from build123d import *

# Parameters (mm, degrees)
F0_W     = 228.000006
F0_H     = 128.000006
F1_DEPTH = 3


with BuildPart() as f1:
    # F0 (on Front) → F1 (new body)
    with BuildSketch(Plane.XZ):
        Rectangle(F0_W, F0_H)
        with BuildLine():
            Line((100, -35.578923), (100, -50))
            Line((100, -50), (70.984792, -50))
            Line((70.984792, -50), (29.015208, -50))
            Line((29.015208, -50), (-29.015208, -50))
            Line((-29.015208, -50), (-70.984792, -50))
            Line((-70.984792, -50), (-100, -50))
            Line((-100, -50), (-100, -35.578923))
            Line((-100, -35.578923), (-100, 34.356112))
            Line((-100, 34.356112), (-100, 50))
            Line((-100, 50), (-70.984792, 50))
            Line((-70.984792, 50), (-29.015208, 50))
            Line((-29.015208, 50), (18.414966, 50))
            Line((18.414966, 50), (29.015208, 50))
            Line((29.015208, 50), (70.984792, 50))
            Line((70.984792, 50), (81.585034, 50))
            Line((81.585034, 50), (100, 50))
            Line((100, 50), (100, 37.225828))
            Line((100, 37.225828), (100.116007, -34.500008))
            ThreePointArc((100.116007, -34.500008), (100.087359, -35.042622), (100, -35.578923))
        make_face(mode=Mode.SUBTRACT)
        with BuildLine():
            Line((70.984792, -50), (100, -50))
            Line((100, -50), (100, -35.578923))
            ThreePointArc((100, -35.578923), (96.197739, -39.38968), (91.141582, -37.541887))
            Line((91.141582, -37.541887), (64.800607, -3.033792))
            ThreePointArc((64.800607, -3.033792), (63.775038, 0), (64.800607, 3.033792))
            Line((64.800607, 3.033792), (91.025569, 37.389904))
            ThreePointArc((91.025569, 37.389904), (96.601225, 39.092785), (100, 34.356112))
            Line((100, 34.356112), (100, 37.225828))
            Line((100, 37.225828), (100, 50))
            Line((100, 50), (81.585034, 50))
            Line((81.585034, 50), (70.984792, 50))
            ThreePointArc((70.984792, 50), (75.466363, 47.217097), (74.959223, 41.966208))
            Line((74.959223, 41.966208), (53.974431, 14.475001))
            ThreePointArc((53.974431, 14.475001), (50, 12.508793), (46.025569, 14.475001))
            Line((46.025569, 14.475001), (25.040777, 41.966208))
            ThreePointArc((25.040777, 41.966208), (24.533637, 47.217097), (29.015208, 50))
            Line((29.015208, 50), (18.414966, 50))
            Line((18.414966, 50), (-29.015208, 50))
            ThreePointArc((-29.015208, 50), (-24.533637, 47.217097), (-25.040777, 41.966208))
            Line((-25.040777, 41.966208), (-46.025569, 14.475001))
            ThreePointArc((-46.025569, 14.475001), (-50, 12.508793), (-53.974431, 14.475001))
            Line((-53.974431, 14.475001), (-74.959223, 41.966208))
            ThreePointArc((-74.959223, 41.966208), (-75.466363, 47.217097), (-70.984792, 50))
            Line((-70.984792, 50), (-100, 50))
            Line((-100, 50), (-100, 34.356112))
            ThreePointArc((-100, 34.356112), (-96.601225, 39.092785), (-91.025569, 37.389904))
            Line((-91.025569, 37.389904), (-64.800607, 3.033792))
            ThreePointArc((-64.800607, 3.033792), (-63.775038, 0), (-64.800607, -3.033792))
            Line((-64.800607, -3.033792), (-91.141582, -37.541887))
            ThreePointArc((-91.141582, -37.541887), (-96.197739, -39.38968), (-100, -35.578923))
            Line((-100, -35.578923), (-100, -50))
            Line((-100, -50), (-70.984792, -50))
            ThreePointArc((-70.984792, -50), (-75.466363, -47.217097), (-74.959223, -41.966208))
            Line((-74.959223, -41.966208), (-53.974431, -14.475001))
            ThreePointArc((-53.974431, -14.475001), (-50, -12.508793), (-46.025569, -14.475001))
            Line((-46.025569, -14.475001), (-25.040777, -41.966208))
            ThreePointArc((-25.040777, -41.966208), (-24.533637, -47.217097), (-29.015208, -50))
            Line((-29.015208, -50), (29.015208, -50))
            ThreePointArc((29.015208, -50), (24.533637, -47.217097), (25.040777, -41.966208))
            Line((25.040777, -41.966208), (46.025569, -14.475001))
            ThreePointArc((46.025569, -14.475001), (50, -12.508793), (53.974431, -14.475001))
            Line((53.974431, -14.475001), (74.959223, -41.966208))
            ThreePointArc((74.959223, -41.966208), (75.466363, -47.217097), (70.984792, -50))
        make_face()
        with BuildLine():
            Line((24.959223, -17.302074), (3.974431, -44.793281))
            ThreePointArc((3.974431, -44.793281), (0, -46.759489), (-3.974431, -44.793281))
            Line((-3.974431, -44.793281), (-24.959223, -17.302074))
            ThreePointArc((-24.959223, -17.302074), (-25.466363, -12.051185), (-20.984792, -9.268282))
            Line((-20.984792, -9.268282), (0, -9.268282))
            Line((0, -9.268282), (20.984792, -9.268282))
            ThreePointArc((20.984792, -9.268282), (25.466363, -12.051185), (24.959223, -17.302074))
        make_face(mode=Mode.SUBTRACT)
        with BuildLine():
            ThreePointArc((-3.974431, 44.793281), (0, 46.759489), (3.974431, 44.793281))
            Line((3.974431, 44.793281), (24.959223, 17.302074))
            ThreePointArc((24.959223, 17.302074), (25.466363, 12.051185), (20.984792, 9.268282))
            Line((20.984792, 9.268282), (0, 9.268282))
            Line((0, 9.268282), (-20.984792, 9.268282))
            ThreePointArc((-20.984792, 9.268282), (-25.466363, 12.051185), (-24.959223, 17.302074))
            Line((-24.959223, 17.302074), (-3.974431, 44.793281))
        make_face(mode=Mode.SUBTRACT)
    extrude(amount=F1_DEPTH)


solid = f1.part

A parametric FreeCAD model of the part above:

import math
import FreeCAD as App
import Part
import Sketcher

V = App.Vector


def add_polygon(sketch, points):
    """Adds a closed chain of lines whose ends are joined by coincident constraints."""
    first, n = sketch.GeometryCount, len(points)
    for a, b in zip(points, points[1:] + points[:1]):
        sketch.addGeometry(Part.LineSegment(App.Vector(*a, 0), App.Vector(*b, 0)), False)
    for i in range(n):
        sketch.addConstraint(Sketcher.Constraint("Coincident", first + i, 2, first + (i + 1) % n, 1))

doc = App.newDocument("Part")
body = doc.addObject("PartDesign::Body", "Body")

# Sketch on XZ plane
sketch1 = body.newObject("Sketcher::SketchObject", "Sketch")
sketch1.AttachmentSupport = (doc.getObject("XZ_Plane"), [""])
sketch1.MapMode = "FlatFace"
add_polygon(sketch1, [(-114, 64), (-114, -64), (114, -64), (114, 64)])  # lines 0-3
sketch1.addGeometry(Part.LineSegment(V(-29, -50, 0), V(-71, -50, 0)), False)  # 4
sketch1.addGeometry(Part.ArcOfCircle(Part.Circle(V(-71, -45, 0), V(0, 0, 1), 5), math.radians(143), math.radians(270)), False)  # 5
sketch1.addGeometry(Part.LineSegment(V(-75, -42, 0), V(-54, -14.5, 0)), False)  # 6
sketch1.addGeometry(Part.ArcOfCircle(Part.Circle(V(-50, -17.5, 0), V(0, 0, 1), 5), math.radians(37), math.radians(143)), False)  # 7
sketch1.addGeometry(Part.LineSegment(V(-46, -14.5, 0), V(-25, -42, 0)), False)  # 8
sketch1.addGeometry(Part.ArcOfCircle(Part.Circle(V(-29, -45, 0), V(0, 0, 1), 5), math.radians(-90), math.radians(37)), False)  # 9
sketch1.addGeometry(Part.ArcOfCircle(Part.Circle(V(21, -14.3, 0), V(0, 0, 1), 5), math.radians(-37), math.radians(90)), False)  # 10
sketch1.addGeometry(Part.LineSegment(V(25, -17.3, 0), V(4, -44.8, 0)), False)  # 11
sketch1.addGeometry(Part.ArcOfCircle(Part.Circle(V(0, -41.8, 0), V(0, 0, 1), 5), math.radians(-143), math.radians(-37)), False)  # 12
sketch1.addGeometry(Part.LineSegment(V(-4, -44.8, 0), V(-25, -17.3, 0)), False)  # 13
sketch1.addGeometry(Part.ArcOfCircle(Part.Circle(V(-21, -14.3, 0), V(0, 0, 1), 5), math.radians(90), math.radians(217)), False)  # 14
sketch1.addGeometry(Part.LineSegment(V(-21, -9.3, 0), V(21, -9.3, 0)), False)  # 15
sketch1.addGeometry(Part.LineSegment(V(-100, -35.6, 0), V(-100, 34.4, 0)), False)  # 16
sketch1.addGeometry(Part.ArcOfCircle(Part.Circle(V(-95, 34.4, 0), V(0, 0, 1), 5), math.radians(37), math.radians(180)), False)  # 17
sketch1.addGeometry(Part.LineSegment(V(-91, 37.4, 0), V(-64.8, 3, 0)), False)  # 18
sketch1.addGeometry(Part.ArcOfCircle(Part.Circle(V(-68.8, 0, 0), V(0, 0, 1), 5), math.radians(-37), math.radians(37)), False)  # 19
sketch1.addGeometry(Part.LineSegment(V(-64.8, -3, 0), V(-91.1, -37.5, 0)), False)  # 20
sketch1.addGeometry(Part.ArcOfCircle(Part.Circle(V(-95.1, -34.5, 0), V(0, 0, 1), 5), math.radians(-168), math.radians(-37)), False)  # 21
sketch1.addGeometry(Part.LineSegment(V(71, -50, 0), V(29, -50, 0)), False)  # 22
sketch1.addGeometry(Part.ArcOfCircle(Part.Circle(V(29, -45, 0), V(0, 0, 1), 5), math.radians(143), math.radians(270)), False)  # 23
sketch1.addGeometry(Part.LineSegment(V(25, -42, 0), V(46, -14.5, 0)), False)  # 24
sketch1.addGeometry(Part.ArcOfCircle(Part.Circle(V(50, -17.5, 0), V(0, 0, 1), 5), math.radians(37), math.radians(143)), False)  # 25
sketch1.addGeometry(Part.LineSegment(V(54, -14.5, 0), V(75, -42, 0)), False)  # 26
sketch1.addGeometry(Part.ArcOfCircle(Part.Circle(V(71, -45, 0), V(0, 0, 1), 5), math.radians(-90), math.radians(37)), False)  # 27
sketch1.addGeometry(Part.ArcOfCircle(Part.Circle(V(95.1, -34.5, 0), V(0, 0, 1), 5), math.radians(-12.37), math.radians(0.09)), False)  # 28
sketch1.addGeometry(Part.ArcOfCircle(Part.Circle(V(95.1, -34.5, 0), V(0, 0, 1), 5), math.radians(-143), math.radians(-12)), False)  # 29
sketch1.addGeometry(Part.LineSegment(V(91.1, -37.5, 0), V(64.8, -3, 0)), False)  # 30
sketch1.addGeometry(Part.ArcOfCircle(Part.Circle(V(68.8, 0, 0), V(0, 0, 1), 5), math.radians(143), math.radians(217)), False)  # 31
sketch1.addGeometry(Part.LineSegment(V(64.8, 3, 0), V(91, 37.4, 0)), False)  # 32
sketch1.addGeometry(Part.ArcOfCircle(Part.Circle(V(95, 34.4, 0), V(0, 0, 1), 5), math.radians(0), math.radians(143)), False)  # 33
sketch1.addGeometry(Part.LineSegment(V(100, 34.4, 0), V(100, 37.2, 0)), False)  # 34
sketch1.addGeometry(Part.LineSegment(V(100, 37.2, 0), V(100.1, -34.5, 0)), False)  # 35
sketch1.addGeometry(Part.LineSegment(V(-71, 50, 0), V(-29, 50, 0)), False)  # 36
sketch1.addGeometry(Part.ArcOfCircle(Part.Circle(V(-29, 45, 0), V(0, 0, 1), 5), math.radians(-37), math.radians(90)), False)  # 37
sketch1.addGeometry(Part.LineSegment(V(-25, 42, 0), V(-46, 14.5, 0)), False)  # 38
sketch1.addGeometry(Part.ArcOfCircle(Part.Circle(V(-50, 17.5, 0), V(0, 0, 1), 5), math.radians(-143), math.radians(-37)), False)  # 39
sketch1.addGeometry(Part.LineSegment(V(-54, 14.5, 0), V(-75, 42, 0)), False)  # 40
sketch1.addGeometry(Part.ArcOfCircle(Part.Circle(V(-71, 45, 0), V(0, 0, 1), 5), math.radians(90), math.radians(217)), False)  # 41
sketch1.addGeometry(Part.LineSegment(V(-25, 17.3, 0), V(-4, 44.8, 0)), False)  # 42
sketch1.addGeometry(Part.ArcOfCircle(Part.Circle(V(0, 41.8, 0), V(0, 0, 1), 5), math.radians(37), math.radians(143)), False)  # 43
sketch1.addGeometry(Part.LineSegment(V(4, 44.8, 0), V(25, 17.3, 0)), False)  # 44
sketch1.addGeometry(Part.ArcOfCircle(Part.Circle(V(21, 14.3, 0), V(0, 0, 1), 5), math.radians(-90), math.radians(37)), False)  # 45
sketch1.addGeometry(Part.LineSegment(V(21, 9.3, 0), V(-21, 9.3, 0)), False)  # 46
sketch1.addGeometry(Part.ArcOfCircle(Part.Circle(V(-21, 14.3, 0), V(0, 0, 1), 5), math.radians(143), math.radians(270)), False)  # 47
sketch1.addGeometry(Part.LineSegment(V(29, 50, 0), V(71, 50, 0)), False)  # 48
sketch1.addGeometry(Part.ArcOfCircle(Part.Circle(V(71, 45, 0), V(0, 0, 1), 5), math.radians(-37), math.radians(90)), False)  # 49
sketch1.addGeometry(Part.LineSegment(V(75, 42, 0), V(54, 14.5, 0)), False)  # 50
sketch1.addGeometry(Part.ArcOfCircle(Part.Circle(V(50, 17.5, 0), V(0, 0, 1), 5), math.radians(-143), math.radians(-37)), False)  # 51
sketch1.addGeometry(Part.LineSegment(V(46, 14.5, 0), V(25, 42, 0)), False)  # 52
sketch1.addGeometry(Part.ArcOfCircle(Part.Circle(V(29, 45, 0), V(0, 0, 1), 5), math.radians(90), math.radians(217)), False)  # 53
sketch1.addConstraint(Sketcher.Constraint("Tangent", 4, 2, 5, 2))
sketch1.addConstraint(Sketcher.Constraint("Tangent", 5, 1, 6, 1))
sketch1.addConstraint(Sketcher.Constraint("Tangent", 6, 2, 7, 2))
sketch1.addConstraint(Sketcher.Constraint("Tangent", 7, 1, 8, 1))
sketch1.addConstraint(Sketcher.Constraint("Tangent", 8, 2, 9, 2))
sketch1.addConstraint(Sketcher.Constraint("Tangent", 9, 1, 4, 1))
sketch1.addConstraint(Sketcher.Constraint("Tangent", 10, 1, 11, 1))
sketch1.addConstraint(Sketcher.Constraint("Tangent", 11, 2, 12, 2))
sketch1.addConstraint(Sketcher.Constraint("Tangent", 12, 1, 13, 1))
sketch1.addConstraint(Sketcher.Constraint("Tangent", 13, 2, 14, 2))
sketch1.addConstraint(Sketcher.Constraint("Tangent", 14, 1, 15, 1))
sketch1.addConstraint(Sketcher.Constraint("Tangent", 15, 2, 10, 2))
sketch1.addConstraint(Sketcher.Constraint("Tangent", 16, 2, 17, 2))
sketch1.addConstraint(Sketcher.Constraint("Tangent", 17, 1, 18, 1))
sketch1.addConstraint(Sketcher.Constraint("Tangent", 18, 2, 19, 2))
sketch1.addConstraint(Sketcher.Constraint("Tangent", 19, 1, 20, 1))
sketch1.addConstraint(Sketcher.Constraint("Tangent", 20, 2, 21, 2))
sketch1.addConstraint(Sketcher.Constraint("Coincident", 21, 1, 16, 1))
sketch1.addConstraint(Sketcher.Constraint("Tangent", 22, 2, 23, 2))
sketch1.addConstraint(Sketcher.Constraint("Tangent", 23, 1, 24, 1))
sketch1.addConstraint(Sketcher.Constraint("Tangent", 24, 2, 25, 2))
sketch1.addConstraint(Sketcher.Constraint("Tangent", 25, 1, 26, 1))
sketch1.addConstraint(Sketcher.Constraint("Tangent", 26, 2, 27, 2))
sketch1.addConstraint(Sketcher.Constraint("Tangent", 27, 1, 22, 1))
sketch1.addConstraint(Sketcher.Constraint("Tangent", 28, 1, 29, 2))
sketch1.addConstraint(Sketcher.Constraint("Tangent", 29, 1, 30, 1))
sketch1.addConstraint(Sketcher.Constraint("Tangent", 30, 2, 31, 2))
sketch1.addConstraint(Sketcher.Constraint("Tangent", 31, 1, 32, 1))
sketch1.addConstraint(Sketcher.Constraint("Tangent", 32, 2, 33, 2))
sketch1.addConstraint(Sketcher.Constraint("Tangent", 33, 1, 34, 1))
sketch1.addConstraint(Sketcher.Constraint("Coincident", 34, 2, 35, 1))
sketch1.addConstraint(Sketcher.Constraint("Tangent", 35, 2, 28, 2))
sketch1.addConstraint(Sketcher.Constraint("Tangent", 36, 2, 37, 2))
sketch1.addConstraint(Sketcher.Constraint("Tangent", 37, 1, 38, 1))
sketch1.addConstraint(Sketcher.Constraint("Tangent", 38, 2, 39, 2))
sketch1.addConstraint(Sketcher.Constraint("Tangent", 39, 1, 40, 1))
sketch1.addConstraint(Sketcher.Constraint("Tangent", 40, 2, 41, 2))
sketch1.addConstraint(Sketcher.Constraint("Tangent", 41, 1, 36, 1))
sketch1.addConstraint(Sketcher.Constraint("Tangent", 42, 2, 43, 2))
sketch1.addConstraint(Sketcher.Constraint("Tangent", 43, 1, 44, 1))
sketch1.addConstraint(Sketcher.Constraint("Tangent", 44, 2, 45, 2))
sketch1.addConstraint(Sketcher.Constraint("Tangent", 45, 1, 46, 1))
sketch1.addConstraint(Sketcher.Constraint("Tangent", 46, 2, 47, 2))
sketch1.addConstraint(Sketcher.Constraint("Tangent", 47, 1, 42, 1))
sketch1.addConstraint(Sketcher.Constraint("Tangent", 48, 2, 49, 2))
sketch1.addConstraint(Sketcher.Constraint("Tangent", 49, 1, 50, 1))
sketch1.addConstraint(Sketcher.Constraint("Tangent", 50, 2, 51, 2))
sketch1.addConstraint(Sketcher.Constraint("Tangent", 51, 1, 52, 1))
sketch1.addConstraint(Sketcher.Constraint("Tangent", 52, 2, 53, 2))
sketch1.addConstraint(Sketcher.Constraint("Tangent", 53, 1, 48, 1))
sketch1.addConstraint(Sketcher.Constraint("Vertical", 0))
sketch1.addConstraint(Sketcher.Constraint("Horizontal", 1))
sketch1.addConstraint(Sketcher.Constraint("Vertical", 2))
sketch1.addConstraint(Sketcher.Constraint("Horizontal", 3))
sketch1.addConstraint(Sketcher.Constraint("Horizontal", 4))
sketch1.addConstraint(Sketcher.Constraint("Horizontal", 15))
sketch1.addConstraint(Sketcher.Constraint("Vertical", 16))
sketch1.addConstraint(Sketcher.Constraint("Horizontal", 22))
sketch1.addConstraint(Sketcher.Constraint("Vertical", 34))
sketch1.addConstraint(Sketcher.Constraint("Horizontal", 36))
sketch1.addConstraint(Sketcher.Constraint("Horizontal", 46))
sketch1.addConstraint(Sketcher.Constraint("Horizontal", 48))
sketch1.addConstraint(Sketcher.Constraint("Equal", 5, 7))
sketch1.addConstraint(Sketcher.Constraint("Equal", 7, 9))
sketch1.addConstraint(Sketcher.Constraint("Equal", 9, 10))
sketch1.addConstraint(Sketcher.Constraint("Equal", 10, 12))
sketch1.addConstraint(Sketcher.Constraint("Equal", 12, 14))
sketch1.addConstraint(Sketcher.Constraint("Equal", 14, 17))
sketch1.addConstraint(Sketcher.Constraint("Equal", 14, 19))
sketch1.addConstraint(Sketcher.Constraint("Equal", 19, 21))
sketch1.addConstraint(Sketcher.Constraint("Equal", 21, 23))
sketch1.addConstraint(Sketcher.Constraint("Equal", 23, 25))
sketch1.addConstraint(Sketcher.Constraint("Equal", 25, 27))
sketch1.addConstraint(Sketcher.Constraint("Equal", 27, 29))
sketch1.addConstraint(Sketcher.Constraint("Equal", 29, 31))
sketch1.addConstraint(Sketcher.Constraint("Equal", 29, 33))
sketch1.addConstraint(Sketcher.Constraint("Equal", 33, 37))
sketch1.addConstraint(Sketcher.Constraint("Equal", 37, 39))
sketch1.addConstraint(Sketcher.Constraint("Equal", 39, 41))
sketch1.addConstraint(Sketcher.Constraint("Equal", 41, 43))
sketch1.addConstraint(Sketcher.Constraint("Equal", 43, 45))
sketch1.addConstraint(Sketcher.Constraint("Equal", 45, 47))
sketch1.addConstraint(Sketcher.Constraint("Equal", 47, 49))
sketch1.addConstraint(Sketcher.Constraint("Equal", 49, 51))
sketch1.addConstraint(Sketcher.Constraint("Equal", 51, 53))
sketch1.addConstraint(Sketcher.Constraint("Symmetric", 19, 3, 31, 3, -1, 1))
sketch1.addConstraint(Sketcher.Constraint("Symmetric", 23, 3, 37, 3, -1, 1))
sketch1.addConstraint(Sketcher.Constraint("Symmetric", 25, 3, 39, 3, -1, 1))
sketch1.addConstraint(Sketcher.Constraint("Symmetric", 12, 3, 43, 3, -1, 1))
sketch1.addConstraint(Sketcher.Constraint("Symmetric", 14, 3, 45, 3, -1, 1))
sketch1.addConstraint(Sketcher.Constraint("Symmetric", 5, 3, 49, 3, -1, 1))
sketch1.addConstraint(Sketcher.Constraint("Symmetric", 7, 3, 51, 3, -1, 1))
sketch1.addConstraint(Sketcher.Constraint("Symmetric", 0, 2, 2, 2, -1, 1))
sketch1.addConstraint(Sketcher.Constraint("Symmetric", 9, 3, 23, 3, -2))
sketch1.addConstraint(Sketcher.Constraint("Symmetric", 7, 3, 25, 3, -2))
sketch1.addConstraint(Sketcher.Constraint("Symmetric", 21, 3, 29, 3, -2))
sketch1.addConstraint(Sketcher.Constraint("Symmetric", 17, 3, 33, 3, -2))
sketch1.addConstraint(Sketcher.Constraint("Symmetric", 11, 2, 12, 1, -2))
sketch1.addConstraint(Sketcher.Constraint("Symmetric", 18, 2, 19, 1, -1))
sketch1.addConstraint(Sketcher.Constraint("Parallel", 6, 11))
sketch1.addConstraint(Sketcher.Constraint("Parallel", 8, 13))
sketch1.addConstraint(Sketcher.Constraint("Parallel", 13, 18))
sketch1.addConstraint(Sketcher.Constraint("Parallel", 18, 26))
sketch1.addConstraint(Sketcher.Constraint("Parallel", 30, 40))
sketch1.addConstraint(Sketcher.Constraint("Parallel", 38, 42))
sketch1.addConstraint(Sketcher.Constraint("Parallel", 44, 52))
sketch1.addConstraint(Sketcher.Constraint("Horizontal", 21, 1, 28, 1))
sketch1.addConstraint(Sketcher.Constraint("Equal", 4, 15))
sketch1.addConstraint(Sketcher.Constraint("Radius", 5, 5.0))
sketch1.addConstraint(Sketcher.Constraint("DistanceY", 5, 3, -1, 1, 45.0))
sketch1.addConstraint(Sketcher.Constraint("DistanceX", 7, 3, -1, 1, 50.0))
sketch1.addConstraint(Sketcher.Constraint("DistanceX", 17, 3, -1, 1, 95.0))
sketch1.addConstraint(Sketcher.Constraint("DistanceY", 6, 2, -1, 1, 14.475001))
sketch1.addConstraint(Sketcher.Constraint("Radius", 28, 5.000057))
sketch1.addConstraint(Sketcher.Constraint("Distance", 18, 43.221419))
sketch1.addConstraint(Sketcher.Constraint("Distance", 20, 43.41262))
sketch1.addConstraint(Sketcher.Constraint("Distance", 35, 71.72593))
sketch1.addConstraint(Sketcher.Constraint("DistanceX", 1, 1, 1, 2, 228.000006))
sketch1.addConstraint(Sketcher.Constraint("DistanceX", 4, 2, 4, 1, 41.969584))
sketch1.addConstraint(Sketcher.Constraint("DistanceY", 0, 2, 0, 1, 128.000006))
sketch1.addConstraint(Sketcher.Constraint("DistanceY", 10, 3, -1, 1, 14.268282))
pad1 = body.newObject("PartDesign::Pad", "Pad")
pad1.Profile = sketch1
pad1.Length = 3

doc.recompute()
